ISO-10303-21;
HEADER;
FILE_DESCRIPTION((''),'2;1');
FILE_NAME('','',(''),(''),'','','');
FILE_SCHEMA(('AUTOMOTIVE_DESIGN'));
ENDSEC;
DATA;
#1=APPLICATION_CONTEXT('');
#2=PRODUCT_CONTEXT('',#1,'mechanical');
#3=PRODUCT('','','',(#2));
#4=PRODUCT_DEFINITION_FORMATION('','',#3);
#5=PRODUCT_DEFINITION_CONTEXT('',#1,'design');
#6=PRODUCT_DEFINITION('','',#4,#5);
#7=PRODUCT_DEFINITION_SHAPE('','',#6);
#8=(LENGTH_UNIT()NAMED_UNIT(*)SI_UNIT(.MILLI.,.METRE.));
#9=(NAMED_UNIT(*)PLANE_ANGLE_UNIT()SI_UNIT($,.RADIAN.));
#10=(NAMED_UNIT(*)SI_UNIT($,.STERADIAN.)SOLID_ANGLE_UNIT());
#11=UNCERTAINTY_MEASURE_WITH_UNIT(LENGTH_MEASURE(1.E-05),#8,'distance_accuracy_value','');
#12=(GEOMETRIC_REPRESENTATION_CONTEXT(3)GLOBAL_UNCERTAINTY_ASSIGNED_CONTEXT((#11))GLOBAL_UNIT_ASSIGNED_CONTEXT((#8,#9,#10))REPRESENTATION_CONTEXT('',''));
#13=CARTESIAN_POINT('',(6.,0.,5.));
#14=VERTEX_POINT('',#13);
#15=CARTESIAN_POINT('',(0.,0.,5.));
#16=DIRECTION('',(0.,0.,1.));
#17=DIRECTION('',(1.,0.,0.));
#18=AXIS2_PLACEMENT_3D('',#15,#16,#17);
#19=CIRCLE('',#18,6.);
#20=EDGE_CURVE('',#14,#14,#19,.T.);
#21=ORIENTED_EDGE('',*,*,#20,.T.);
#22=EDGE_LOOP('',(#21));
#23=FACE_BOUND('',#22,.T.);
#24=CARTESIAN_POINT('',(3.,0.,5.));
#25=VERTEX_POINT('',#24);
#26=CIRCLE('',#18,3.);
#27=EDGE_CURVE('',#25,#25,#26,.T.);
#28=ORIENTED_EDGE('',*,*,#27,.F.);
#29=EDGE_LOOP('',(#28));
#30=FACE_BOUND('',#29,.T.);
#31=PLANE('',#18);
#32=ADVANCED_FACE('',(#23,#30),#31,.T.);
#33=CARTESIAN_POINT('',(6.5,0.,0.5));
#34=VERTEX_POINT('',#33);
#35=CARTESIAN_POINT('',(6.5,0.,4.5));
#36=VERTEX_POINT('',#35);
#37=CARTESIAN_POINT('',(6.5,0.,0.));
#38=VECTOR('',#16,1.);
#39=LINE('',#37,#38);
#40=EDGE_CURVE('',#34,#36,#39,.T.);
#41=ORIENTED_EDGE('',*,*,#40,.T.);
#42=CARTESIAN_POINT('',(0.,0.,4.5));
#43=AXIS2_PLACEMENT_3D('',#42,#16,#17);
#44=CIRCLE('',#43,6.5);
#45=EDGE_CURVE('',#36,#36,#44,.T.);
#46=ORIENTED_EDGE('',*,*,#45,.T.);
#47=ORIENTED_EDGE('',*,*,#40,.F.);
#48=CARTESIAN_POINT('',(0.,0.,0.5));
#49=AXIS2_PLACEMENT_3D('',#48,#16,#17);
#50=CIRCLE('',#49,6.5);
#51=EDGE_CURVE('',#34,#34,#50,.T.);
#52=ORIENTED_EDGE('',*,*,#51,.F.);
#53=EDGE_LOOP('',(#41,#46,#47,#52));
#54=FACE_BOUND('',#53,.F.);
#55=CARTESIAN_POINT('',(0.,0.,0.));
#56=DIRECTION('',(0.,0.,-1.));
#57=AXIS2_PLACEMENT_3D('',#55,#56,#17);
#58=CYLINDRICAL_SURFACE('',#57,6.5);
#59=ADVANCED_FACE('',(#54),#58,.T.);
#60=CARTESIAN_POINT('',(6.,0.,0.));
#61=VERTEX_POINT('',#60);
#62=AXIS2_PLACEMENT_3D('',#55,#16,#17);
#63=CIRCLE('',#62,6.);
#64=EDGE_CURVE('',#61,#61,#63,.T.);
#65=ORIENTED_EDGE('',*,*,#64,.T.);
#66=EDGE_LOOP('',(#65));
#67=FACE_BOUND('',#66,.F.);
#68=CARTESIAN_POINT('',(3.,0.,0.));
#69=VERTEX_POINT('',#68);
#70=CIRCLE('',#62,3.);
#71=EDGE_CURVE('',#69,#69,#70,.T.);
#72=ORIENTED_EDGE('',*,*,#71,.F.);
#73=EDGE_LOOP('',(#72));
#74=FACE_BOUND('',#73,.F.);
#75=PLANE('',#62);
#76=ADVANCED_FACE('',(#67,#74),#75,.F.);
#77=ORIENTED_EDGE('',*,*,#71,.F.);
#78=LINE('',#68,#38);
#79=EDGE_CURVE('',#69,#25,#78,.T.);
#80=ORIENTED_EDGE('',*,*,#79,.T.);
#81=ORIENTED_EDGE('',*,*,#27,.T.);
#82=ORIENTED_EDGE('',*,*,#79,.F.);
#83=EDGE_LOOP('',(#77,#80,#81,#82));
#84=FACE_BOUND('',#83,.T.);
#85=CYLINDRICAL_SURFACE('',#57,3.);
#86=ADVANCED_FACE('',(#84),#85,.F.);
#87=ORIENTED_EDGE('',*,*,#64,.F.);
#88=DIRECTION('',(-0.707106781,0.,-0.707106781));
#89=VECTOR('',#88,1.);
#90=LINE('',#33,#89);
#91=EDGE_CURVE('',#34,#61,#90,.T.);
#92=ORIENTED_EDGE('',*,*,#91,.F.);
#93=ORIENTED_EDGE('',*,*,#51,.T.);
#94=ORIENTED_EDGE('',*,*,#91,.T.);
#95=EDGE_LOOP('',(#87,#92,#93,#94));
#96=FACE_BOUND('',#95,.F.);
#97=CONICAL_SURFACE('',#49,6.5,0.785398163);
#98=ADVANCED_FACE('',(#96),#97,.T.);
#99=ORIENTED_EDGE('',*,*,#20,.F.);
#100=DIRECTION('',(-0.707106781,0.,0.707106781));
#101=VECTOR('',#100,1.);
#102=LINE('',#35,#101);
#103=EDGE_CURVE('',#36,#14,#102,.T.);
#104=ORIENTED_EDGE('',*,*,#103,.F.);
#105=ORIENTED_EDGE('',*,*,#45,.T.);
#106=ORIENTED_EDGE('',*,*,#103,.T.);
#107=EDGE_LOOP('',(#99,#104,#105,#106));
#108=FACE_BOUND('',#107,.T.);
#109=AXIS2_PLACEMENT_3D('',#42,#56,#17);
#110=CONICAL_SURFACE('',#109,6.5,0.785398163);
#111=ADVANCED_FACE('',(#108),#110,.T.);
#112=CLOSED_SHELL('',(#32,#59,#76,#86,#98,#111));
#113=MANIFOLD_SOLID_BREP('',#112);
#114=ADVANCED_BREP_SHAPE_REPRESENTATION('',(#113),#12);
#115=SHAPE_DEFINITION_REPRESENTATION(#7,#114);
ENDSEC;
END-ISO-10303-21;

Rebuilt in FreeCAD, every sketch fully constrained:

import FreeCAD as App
import Part
import Sketcher
Q = App.Units.Quantity


def edges_at(feature, points):
    """Names of the edges that pass closest to the given points."""
    edges = feature.Shape.Edges
    near = lambda p: min(range(len(edges)), key=lambda i: edges[i].distToShape(Part.Vertex(*p))[0])
    return sorted({f"Edge{near(p) + 1}" for p in points})

doc = App.newDocument("Part")
body = doc.addObject("PartDesign::Body", "Body")

# Sketch on XY plane
sketch1 = doc.addObject("Sketcher::SketchObject", "Sketch")
body.addObject(sketch1)
sketch1.AttachmentSupport = (doc.XY_Plane, [""])
sketch1.MapMode = "FlatFace"
sketch1.addGeometry(Part.Circle(App.Vector(0, 0, 0), App.Vector(0, 0, 1), 6.5), False)
sketch1.addGeometry(Part.Circle(App.Vector(0, 0, 0), App.Vector(0, 0, 1), 3), False)
sketch1.addConstraint(Sketcher.Constraint("Coincident", 0, 3, -1, 1))
sketch1.addConstraint(Sketcher.Constraint("Coincident", 1, 3, -1, 1))
sketch1.addConstraint(Sketcher.Constraint("Diameter", 0, Q("13 mm")))
sketch1.addConstraint(Sketcher.Constraint("Diameter", 1, Q("6 mm")))
pad1 = doc.addObject("PartDesign::Pad", "Pad")
body.addObject(pad1)
pad1.Profile = sketch1
pad1.Length = 5
doc.recompute()

chamfer = doc.addObject("PartDesign::Chamfer", "Chamfer")
body.addObject(chamfer)
chamfer.Base = (pad1, edges_at(pad1, [(-6.5, 0, 5)]))
chamfer.Size = 0.5
doc.recompute()

chamfer2 = doc.addObject("PartDesign::Chamfer", "Chamfer001")
body.addObject(chamfer2)
chamfer2.Base = (chamfer, edges_at(chamfer, [(-6.5, 0, 0)]))
chamfer2.Size = 0.5

doc.recompute()
